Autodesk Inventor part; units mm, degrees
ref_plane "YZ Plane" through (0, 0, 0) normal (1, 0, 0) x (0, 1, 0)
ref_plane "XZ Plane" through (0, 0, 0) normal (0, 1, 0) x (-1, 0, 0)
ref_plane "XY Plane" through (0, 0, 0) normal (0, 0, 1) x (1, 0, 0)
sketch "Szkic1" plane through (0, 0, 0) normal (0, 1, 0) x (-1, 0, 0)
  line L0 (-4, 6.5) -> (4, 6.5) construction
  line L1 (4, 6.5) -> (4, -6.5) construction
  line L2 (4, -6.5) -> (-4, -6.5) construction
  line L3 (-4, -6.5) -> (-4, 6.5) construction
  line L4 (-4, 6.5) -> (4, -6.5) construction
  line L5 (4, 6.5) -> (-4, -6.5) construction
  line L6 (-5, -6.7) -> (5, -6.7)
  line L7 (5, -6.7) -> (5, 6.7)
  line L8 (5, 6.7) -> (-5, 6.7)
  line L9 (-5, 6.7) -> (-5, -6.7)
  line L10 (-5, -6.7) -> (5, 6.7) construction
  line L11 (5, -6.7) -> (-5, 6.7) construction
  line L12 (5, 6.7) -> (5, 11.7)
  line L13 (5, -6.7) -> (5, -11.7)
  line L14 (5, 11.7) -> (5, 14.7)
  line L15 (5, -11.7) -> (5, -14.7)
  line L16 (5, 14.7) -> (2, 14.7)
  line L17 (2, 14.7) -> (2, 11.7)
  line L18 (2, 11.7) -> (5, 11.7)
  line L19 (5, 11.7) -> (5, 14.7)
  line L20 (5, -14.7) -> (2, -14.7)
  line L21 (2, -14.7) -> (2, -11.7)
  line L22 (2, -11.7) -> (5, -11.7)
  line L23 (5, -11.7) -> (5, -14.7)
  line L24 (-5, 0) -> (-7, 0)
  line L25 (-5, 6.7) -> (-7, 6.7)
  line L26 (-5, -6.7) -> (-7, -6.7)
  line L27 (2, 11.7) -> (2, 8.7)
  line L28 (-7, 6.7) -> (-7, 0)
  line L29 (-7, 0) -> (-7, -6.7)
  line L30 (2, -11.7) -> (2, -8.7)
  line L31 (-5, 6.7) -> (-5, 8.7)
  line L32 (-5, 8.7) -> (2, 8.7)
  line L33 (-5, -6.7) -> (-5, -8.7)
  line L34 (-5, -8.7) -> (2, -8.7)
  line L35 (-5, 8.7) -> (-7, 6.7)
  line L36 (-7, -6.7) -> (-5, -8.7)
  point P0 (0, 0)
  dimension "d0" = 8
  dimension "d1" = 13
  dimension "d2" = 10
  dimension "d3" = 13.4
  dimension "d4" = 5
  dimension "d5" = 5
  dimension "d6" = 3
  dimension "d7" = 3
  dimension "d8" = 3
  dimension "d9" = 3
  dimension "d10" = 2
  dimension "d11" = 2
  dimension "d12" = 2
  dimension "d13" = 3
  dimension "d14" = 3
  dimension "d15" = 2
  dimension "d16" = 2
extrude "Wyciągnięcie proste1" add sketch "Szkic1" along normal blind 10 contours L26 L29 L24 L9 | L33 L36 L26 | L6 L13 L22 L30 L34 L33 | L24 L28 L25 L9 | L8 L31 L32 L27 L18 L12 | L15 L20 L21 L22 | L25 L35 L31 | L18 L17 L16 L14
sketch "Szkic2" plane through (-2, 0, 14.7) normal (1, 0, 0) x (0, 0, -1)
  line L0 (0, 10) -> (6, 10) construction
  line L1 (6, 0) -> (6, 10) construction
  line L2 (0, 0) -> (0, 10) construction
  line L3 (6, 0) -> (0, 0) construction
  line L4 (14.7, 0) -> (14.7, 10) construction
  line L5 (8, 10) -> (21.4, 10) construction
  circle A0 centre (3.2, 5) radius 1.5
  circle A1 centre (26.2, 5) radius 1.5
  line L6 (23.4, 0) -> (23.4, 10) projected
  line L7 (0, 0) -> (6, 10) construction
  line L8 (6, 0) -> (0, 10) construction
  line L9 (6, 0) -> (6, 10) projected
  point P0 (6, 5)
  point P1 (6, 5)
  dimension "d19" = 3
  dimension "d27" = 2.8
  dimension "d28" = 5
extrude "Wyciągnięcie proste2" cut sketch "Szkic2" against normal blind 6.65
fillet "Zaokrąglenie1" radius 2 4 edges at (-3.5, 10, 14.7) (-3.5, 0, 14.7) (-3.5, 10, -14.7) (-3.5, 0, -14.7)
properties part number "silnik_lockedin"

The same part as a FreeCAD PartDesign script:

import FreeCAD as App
import Part
import Sketcher

V = App.Vector
Q = App.Units.Quantity


def edges_at(feature, points):
    """Names of the edges that pass closest to the given points."""
    edges = feature.Shape.Edges
    near = lambda p: min(range(len(edges)), key=lambda i: edges[i].distToShape(Part.Vertex(*p))[0])
    return sorted({f"Edge{near(p) + 1}" for p in points})


def add_polygon(sketch, points):
    """Adds a closed chain of lines whose ends are joined by coincident constraints."""
    first, n = sketch.GeometryCount, len(points)
    for a, b in zip(points, points[1:] + points[:1]):
        sketch.addGeometry(Part.LineSegment(App.Vector(*a, 0), App.Vector(*b, 0)), False)
    for i in range(n):
        sketch.addConstraint(Sketcher.Constraint("Coincident", first + i, 2, first + (i + 1) % n, 1))

doc = App.newDocument("Part")
params = doc.addObject("Spreadsheet::Sheet", "Params")
for row, (alias, value) in enumerate([
    ("sketch1_width", "3 mm"),
    ("sketch1_width2", "10 mm"),
    ("sketch1_height", "8 mm"),
    ("sketch1_height2", "13.4 mm"),
    ("pad1_length", "10 mm"),
    ("sketch2_diameter", "3 mm"),
    ("pocket1_length", "6.65 mm"),
    ("fillet_radius", "2 mm"),
], start=1):
    params.set(f"A{row}", alias)
    params.set(f"B{row}", "=" + value)
    params.setAlias(f"B{row}", alias)

body = doc.addObject("PartDesign::Body", "Body")

sketch1 = body.newObject("Sketcher::SketchObject", "Sketch")
sketch1.AttachmentSupport = (doc.getObject("XZ_Plane"), [""])
sketch1.MapMode = "FlatFace"
add_polygon(sketch1, [(7, -6.7), (5, -8.7), (-2, -8.7), (-2, -14.7), (-5, -14.7), (-5, -6.7), (5, -6.7), (5, 6.7), (-5, 6.7), (-5, 14.7), (-2, 14.7), (-2, 8.7), (5, 8.7), (7, 6.7)])
sketch1.addConstraint(Sketcher.Constraint("Horizontal", 1))
sketch1.addConstraint(Sketcher.Constraint("Vertical", 2))
sketch1.addConstraint(Sketcher.Constraint("Horizontal", 3))
sketch1.addConstraint(Sketcher.Constraint("Vertical", 4))
sketch1.addConstraint(Sketcher.Constraint("Horizontal", 5))
sketch1.addConstraint(Sketcher.Constraint("Vertical", 6))
sketch1.addConstraint(Sketcher.Constraint("Horizontal", 7))
sketch1.addConstraint(Sketcher.Constraint("Vertical", 8))
sketch1.addConstraint(Sketcher.Constraint("Horizontal", 9))
sketch1.addConstraint(Sketcher.Constraint("Vertical", 10))
sketch1.addConstraint(Sketcher.Constraint("Horizontal", 11))
sketch1.addConstraint(Sketcher.Constraint("Vertical", 13))
sketch1.addConstraint(Sketcher.Constraint("Symmetric", 4, 2, 6, 2, -1, 1))
sketch1.addConstraint(Sketcher.Constraint("Symmetric", 3, 2, 8, 2, -1))
sketch1.addConstraint(Sketcher.Constraint("Symmetric", 1, 2, 10, 2, -1))
sketch1.addConstraint(Sketcher.Constraint("Perpendicular", 0, 12))
sketch1.addConstraint(Sketcher.Constraint("Horizontal", 7, 2, 12, 2))
sketch1.addConstraint(Sketcher.Constraint("Horizontal", 5, 2, 13, 2))
sketch1.addConstraint(Sketcher.Constraint("Vertical", 0, 2, 5, 2))
sketch1.addConstraint(Sketcher.Constraint("Vertical", 6, 2, 11, 2))
sketch1.addConstraint(Sketcher.Constraint("DistanceX", 3, 2, 3, 1, Q("3 mm")))
sketch1.addConstraint(Sketcher.Constraint("DistanceX", 5, 1, 5, 2, Q("10 mm")))
sketch1.addConstraint(Sketcher.Constraint("DistanceY", 4, 1, 4, 2, Q("8 mm")))
sketch1.addConstraint(Sketcher.Constraint("DistanceY", 6, 1, 6, 2, Q("13.4 mm")))
sketch1.addConstraint(Sketcher.Constraint("DistanceY", 1, 2, 4, 2, Q("2 mm")))
sketch1.setExpression("Constraints[34]", "Params.sketch1_width")
sketch1.setExpression("Constraints[35]", "Params.sketch1_width2")
sketch1.setExpression("Constraints[36]", "Params.sketch1_height")
sketch1.setExpression("Constraints[37]", "Params.sketch1_height2")
pad1 = body.newObject("PartDesign::Pad", "Pad")
pad1.Profile = sketch1
pad1.setExpression("Length", "Params.pad1_length")
pad1.Reversed = True

sketch2 = body.newObject("Sketcher::SketchObject", "Sketch001")
sketch2.AttachmentSupport = (doc.getObject("YZ_Plane"), [""])
sketch2.MapMode = "FlatFace"
sketch2.AttachmentOffset = App.Placement(V(0, 0, -2), App.Rotation())
sketch2.addGeometry(Part.Circle(V(5, 11.5, 0), V(0, 0, 1), 1.5), False)
sketch2.addGeometry(Part.Circle(V(5, -11.5, 0), V(0, 0, 1), 1.5), False)
sketch2.addConstraint(Sketcher.Constraint("Equal", 0, 1))
sketch2.addConstraint(Sketcher.Constraint("Symmetric", 0, 3, 1, 3, -1))
sketch2.addConstraint(Sketcher.Constraint("Diameter", 0, Q("3 mm")))
sketch2.addConstraint(Sketcher.Constraint("DistanceX", -1, 1, 0, 3, Q("5 mm")))
sketch2.addConstraint(Sketcher.Constraint("DistanceY", 1, 3, 0, 3, Q("23 mm")))
sketch2.setExpression("Constraints[2]", "Params.sketch2_diameter")
pocket1 = body.newObject("PartDesign::Pocket", "Pocket")
pocket1.Profile = sketch2
pocket1.setExpression("Length", "Params.pocket1_length")
doc.recompute()

fillet = body.newObject("PartDesign::Fillet", "Fillet")
fillet.Base = (pocket1, edges_at(pocket1, [
    (-3.5, 10, 14.7),
    (-3.5, 0, 14.7),
    (-3.5, 10, -14.7),
    (-3.5, 0, -14.7),
]))
fillet.setExpression("Radius", "Params.fillet_radius")

doc.recompute()
